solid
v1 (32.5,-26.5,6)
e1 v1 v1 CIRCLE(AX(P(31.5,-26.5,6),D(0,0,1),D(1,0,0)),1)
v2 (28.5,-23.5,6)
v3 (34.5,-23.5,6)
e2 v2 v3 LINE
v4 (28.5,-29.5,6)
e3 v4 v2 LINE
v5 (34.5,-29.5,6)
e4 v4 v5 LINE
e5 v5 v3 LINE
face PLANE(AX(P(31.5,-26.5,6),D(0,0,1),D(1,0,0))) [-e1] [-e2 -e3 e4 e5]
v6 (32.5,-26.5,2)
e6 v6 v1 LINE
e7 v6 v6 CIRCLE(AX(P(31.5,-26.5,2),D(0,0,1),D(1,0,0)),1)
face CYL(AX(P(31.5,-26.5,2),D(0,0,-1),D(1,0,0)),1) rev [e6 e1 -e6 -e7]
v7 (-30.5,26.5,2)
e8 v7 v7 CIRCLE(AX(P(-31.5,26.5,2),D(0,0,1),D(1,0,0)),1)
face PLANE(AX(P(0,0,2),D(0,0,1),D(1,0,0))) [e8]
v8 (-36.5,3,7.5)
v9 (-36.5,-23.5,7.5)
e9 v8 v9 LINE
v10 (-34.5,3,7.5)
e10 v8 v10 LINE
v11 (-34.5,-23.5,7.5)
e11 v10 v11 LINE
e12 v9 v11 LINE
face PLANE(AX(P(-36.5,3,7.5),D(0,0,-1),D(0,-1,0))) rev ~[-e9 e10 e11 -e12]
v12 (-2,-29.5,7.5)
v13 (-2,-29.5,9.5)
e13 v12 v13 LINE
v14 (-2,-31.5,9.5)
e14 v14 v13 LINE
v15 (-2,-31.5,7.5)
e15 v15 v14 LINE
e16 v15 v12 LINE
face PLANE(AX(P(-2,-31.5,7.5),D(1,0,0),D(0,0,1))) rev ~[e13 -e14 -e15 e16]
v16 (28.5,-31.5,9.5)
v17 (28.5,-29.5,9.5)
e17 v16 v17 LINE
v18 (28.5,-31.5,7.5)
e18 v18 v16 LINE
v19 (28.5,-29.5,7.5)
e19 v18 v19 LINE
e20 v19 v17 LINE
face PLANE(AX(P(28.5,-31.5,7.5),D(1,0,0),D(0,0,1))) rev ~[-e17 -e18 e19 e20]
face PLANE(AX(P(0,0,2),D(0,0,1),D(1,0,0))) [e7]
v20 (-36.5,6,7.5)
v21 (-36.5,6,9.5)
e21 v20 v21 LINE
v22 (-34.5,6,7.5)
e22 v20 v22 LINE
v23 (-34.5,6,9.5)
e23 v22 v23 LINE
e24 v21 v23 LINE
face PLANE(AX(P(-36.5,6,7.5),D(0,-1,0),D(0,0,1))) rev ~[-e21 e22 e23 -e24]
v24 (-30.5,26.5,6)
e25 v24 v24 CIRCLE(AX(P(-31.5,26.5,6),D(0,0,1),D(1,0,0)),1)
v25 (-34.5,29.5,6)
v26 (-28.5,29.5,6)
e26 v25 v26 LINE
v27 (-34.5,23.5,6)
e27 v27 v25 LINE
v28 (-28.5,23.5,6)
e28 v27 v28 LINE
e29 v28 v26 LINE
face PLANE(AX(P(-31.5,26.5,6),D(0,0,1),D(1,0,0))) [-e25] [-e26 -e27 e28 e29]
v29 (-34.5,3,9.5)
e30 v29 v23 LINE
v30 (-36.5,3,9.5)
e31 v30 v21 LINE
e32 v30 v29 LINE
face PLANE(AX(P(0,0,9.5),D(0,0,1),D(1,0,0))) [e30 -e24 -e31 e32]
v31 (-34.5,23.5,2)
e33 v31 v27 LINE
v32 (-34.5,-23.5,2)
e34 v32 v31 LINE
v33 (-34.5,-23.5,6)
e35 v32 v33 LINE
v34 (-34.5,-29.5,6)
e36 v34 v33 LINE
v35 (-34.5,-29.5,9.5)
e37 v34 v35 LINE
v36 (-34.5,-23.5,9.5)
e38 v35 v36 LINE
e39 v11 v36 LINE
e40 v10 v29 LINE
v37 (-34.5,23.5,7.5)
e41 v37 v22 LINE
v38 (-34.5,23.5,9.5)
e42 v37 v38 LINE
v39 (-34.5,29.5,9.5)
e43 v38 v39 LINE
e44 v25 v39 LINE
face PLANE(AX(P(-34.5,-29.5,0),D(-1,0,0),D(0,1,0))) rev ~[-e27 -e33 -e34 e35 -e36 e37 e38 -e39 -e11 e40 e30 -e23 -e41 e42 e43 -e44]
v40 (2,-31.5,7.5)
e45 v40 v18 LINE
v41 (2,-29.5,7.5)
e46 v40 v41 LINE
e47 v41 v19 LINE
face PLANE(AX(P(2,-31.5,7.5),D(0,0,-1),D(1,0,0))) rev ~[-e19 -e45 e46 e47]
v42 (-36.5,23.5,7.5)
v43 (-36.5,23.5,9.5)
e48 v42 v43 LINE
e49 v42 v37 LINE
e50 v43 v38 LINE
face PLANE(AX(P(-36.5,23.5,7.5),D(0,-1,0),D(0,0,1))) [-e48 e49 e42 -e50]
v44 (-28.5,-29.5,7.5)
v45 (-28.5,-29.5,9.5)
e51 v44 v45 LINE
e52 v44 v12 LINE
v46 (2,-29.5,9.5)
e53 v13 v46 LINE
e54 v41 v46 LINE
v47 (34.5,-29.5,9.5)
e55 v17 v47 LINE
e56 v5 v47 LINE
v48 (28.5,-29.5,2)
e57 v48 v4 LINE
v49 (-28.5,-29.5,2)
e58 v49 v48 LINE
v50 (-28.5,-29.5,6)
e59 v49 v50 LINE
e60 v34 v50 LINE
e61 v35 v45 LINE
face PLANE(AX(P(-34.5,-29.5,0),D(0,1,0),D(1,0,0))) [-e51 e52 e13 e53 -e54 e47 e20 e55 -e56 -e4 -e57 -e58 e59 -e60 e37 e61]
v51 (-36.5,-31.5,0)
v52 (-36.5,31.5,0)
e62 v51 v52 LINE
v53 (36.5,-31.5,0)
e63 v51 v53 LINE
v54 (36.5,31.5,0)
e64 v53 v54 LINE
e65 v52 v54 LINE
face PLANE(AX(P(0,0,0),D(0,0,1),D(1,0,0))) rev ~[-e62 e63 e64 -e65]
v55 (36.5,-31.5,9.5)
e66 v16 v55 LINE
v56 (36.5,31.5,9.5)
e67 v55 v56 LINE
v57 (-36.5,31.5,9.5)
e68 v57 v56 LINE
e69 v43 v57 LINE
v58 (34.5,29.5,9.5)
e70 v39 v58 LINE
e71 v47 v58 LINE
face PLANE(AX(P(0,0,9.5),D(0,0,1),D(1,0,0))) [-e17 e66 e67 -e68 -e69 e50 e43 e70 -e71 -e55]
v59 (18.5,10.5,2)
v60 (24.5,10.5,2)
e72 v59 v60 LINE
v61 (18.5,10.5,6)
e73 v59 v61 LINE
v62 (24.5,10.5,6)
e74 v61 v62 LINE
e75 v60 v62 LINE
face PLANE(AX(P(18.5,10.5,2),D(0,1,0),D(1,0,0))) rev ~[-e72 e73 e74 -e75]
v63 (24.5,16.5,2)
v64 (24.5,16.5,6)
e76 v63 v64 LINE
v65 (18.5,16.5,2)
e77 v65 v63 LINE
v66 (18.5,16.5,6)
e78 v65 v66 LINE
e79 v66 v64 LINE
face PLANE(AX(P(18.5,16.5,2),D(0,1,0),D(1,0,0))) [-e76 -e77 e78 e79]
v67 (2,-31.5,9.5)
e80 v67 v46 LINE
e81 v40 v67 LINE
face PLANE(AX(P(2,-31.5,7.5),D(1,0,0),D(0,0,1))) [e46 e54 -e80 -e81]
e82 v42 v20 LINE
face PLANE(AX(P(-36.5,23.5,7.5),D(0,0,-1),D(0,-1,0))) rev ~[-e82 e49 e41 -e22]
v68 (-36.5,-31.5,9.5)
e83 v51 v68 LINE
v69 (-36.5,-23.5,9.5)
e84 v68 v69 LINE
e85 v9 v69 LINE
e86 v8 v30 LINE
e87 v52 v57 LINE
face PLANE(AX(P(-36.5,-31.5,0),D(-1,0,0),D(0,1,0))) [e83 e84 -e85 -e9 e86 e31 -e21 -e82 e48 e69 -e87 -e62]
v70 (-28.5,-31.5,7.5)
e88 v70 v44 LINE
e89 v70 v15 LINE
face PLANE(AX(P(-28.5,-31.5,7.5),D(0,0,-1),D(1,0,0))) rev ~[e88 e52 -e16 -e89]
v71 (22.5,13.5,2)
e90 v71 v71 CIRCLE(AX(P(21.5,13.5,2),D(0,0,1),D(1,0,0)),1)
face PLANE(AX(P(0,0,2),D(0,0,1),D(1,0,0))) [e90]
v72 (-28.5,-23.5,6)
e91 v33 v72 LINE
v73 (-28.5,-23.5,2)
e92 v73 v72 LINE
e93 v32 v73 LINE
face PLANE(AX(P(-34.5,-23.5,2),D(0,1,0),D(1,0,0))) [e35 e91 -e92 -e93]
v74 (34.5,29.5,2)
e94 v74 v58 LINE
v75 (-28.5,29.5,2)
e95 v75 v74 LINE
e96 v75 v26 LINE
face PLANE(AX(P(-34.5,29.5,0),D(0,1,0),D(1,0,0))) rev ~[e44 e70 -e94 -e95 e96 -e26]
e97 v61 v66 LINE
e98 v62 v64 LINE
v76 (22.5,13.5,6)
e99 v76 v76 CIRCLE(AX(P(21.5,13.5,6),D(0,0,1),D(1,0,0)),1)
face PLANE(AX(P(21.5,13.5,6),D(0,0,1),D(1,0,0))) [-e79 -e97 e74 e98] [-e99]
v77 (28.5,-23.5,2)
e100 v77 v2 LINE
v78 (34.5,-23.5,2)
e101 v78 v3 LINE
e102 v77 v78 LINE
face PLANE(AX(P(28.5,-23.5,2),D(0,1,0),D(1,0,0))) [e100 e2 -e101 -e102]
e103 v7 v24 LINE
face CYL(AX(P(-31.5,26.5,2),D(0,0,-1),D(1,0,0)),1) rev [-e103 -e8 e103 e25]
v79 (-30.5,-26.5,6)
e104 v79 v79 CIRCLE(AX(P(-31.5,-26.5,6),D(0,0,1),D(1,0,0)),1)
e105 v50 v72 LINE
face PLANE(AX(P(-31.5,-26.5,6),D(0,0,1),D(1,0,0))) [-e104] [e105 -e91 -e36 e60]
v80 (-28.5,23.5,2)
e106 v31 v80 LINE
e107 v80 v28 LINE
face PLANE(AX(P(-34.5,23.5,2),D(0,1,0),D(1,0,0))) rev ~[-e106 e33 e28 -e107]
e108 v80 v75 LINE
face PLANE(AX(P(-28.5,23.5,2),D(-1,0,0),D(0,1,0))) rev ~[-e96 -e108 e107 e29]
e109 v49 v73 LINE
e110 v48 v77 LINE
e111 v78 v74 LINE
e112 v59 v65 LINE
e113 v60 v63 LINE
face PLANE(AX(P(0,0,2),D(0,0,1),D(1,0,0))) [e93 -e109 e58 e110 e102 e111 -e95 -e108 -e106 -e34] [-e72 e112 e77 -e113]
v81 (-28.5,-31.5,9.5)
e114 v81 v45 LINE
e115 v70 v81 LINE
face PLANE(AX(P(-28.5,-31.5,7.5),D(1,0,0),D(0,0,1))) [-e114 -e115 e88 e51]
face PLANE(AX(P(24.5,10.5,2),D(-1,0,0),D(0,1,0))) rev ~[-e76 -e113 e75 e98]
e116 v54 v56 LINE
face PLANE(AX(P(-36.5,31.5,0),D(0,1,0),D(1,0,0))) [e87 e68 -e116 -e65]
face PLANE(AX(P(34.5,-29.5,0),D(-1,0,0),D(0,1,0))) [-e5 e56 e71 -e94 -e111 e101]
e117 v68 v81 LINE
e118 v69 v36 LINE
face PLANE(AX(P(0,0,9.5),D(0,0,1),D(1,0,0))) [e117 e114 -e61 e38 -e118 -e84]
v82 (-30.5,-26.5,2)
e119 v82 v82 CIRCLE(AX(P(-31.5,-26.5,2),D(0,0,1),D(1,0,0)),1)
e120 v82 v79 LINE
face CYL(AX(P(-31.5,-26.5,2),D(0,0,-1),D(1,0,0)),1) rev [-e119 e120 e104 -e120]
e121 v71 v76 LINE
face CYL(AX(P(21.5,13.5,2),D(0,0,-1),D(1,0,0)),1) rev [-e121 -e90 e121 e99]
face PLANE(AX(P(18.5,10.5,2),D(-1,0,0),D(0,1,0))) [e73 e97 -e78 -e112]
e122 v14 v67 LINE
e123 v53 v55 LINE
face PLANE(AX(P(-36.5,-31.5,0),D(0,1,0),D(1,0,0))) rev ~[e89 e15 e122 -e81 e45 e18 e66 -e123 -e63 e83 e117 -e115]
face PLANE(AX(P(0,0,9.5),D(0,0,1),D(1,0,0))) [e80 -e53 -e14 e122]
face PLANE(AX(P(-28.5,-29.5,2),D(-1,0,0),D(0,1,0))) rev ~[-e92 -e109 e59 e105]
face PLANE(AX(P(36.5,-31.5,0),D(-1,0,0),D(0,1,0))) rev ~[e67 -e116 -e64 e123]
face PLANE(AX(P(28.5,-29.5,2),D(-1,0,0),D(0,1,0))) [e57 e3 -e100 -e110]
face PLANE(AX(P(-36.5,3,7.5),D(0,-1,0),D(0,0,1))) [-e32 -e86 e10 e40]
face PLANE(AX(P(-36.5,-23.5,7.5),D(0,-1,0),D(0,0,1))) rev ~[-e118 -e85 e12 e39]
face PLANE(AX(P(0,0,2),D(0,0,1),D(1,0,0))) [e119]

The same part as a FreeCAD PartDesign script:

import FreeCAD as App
import Part
import Sketcher
Q = App.Units.Quantity

doc = App.newDocument("Part")
params = doc.addObject("Spreadsheet::Sheet", "Params")
for row, (alias, value) in enumerate([
    ("sketch1_width", "73 mm"),
    ("sketch1_width2", "69 mm"),
    ("sketch1_height", "63 mm"),
    ("sketch1_height2", "59 mm"),
    ("pad1_length", "9.5 mm"),
    ("sketch2_width", "69 mm"),
    ("sketch2_height", "59 mm"),
    ("pad2_length", "2 mm"),
    ("sketch3_diameter", "2 mm"),
    ("sketch3_width", "6 mm"),
    ("pad3_length", "4 mm"),
    ("sketch4_height", "2 mm"),
    ("sketch4_width", "26.5 mm"),
    ("pocket1_length", "2 mm"),
    ("sketch5_height", "2 mm"),
    ("sketch5_width", "26.5 mm"),
    ("sketch5_width2", "17.5 mm"),
    ("pocket2_length", "2 mm"),
], start=1):
    params.set(f"A{row}", alias)
    params.set(f"B{row}", "=" + value)
    params.setAlias(f"B{row}", alias)

body = doc.addObject("PartDesign::Body", "Body")

# Sketch on XY plane
sketch1 = body.newObject("Sketcher::SketchObject", "Sketch")
sketch1.AttachmentSupport = (doc.getObject("XY_Plane"), [""])
sketch1.MapMode = "FlatFace"
sketch1.addGeometry([
    Part.LineSegment(App.Vector(-36.5, 31.5, 0), App.Vector(-36.5, -31.5, 0)),  # 0
    Part.LineSegment(App.Vector(-36.5, -31.5, 0), App.Vector(36.5, -31.5, 0)),  # 1
    Part.LineSegment(App.Vector(36.5, -31.5, 0), App.Vector(36.5, 31.5, 0)),  # 2
    Part.LineSegment(App.Vector(36.5, 31.5, 0), App.Vector(-36.5, 31.5, 0)),  # 3
    Part.LineSegment(App.Vector(34.5, -29.5, 0), App.Vector(-34.5, -29.5, 0)),  # 4
    Part.LineSegment(App.Vector(-34.5, -29.5, 0), App.Vector(-34.5, 29.5, 0)),  # 5
    Part.LineSegment(App.Vector(-34.5, 29.5, 0), App.Vector(34.5, 29.5, 0)),  # 6
    Part.LineSegment(App.Vector(34.5, 29.5, 0), App.Vector(34.5, -29.5, 0)),  # 7
], False)
sketch1.addConstraint([
    Sketcher.Constraint("Coincident", 0, 2, 1, 1),
    Sketcher.Constraint("Coincident", 1, 2, 2, 1),
    Sketcher.Constraint("Coincident", 2, 2, 3, 1),
    Sketcher.Constraint("Coincident", 3, 2, 0, 1),
    Sketcher.Constraint("Coincident", 4, 2, 5, 1),
    Sketcher.Constraint("Coincident", 5, 2, 6, 1),
    Sketcher.Constraint("Coincident", 6, 2, 7, 1),
    Sketcher.Constraint("Coincident", 7, 2, 4, 1),
    Sketcher.Constraint("Vertical", 0),
    Sketcher.Constraint("Horizontal", 1),
    Sketcher.Constraint("Vertical", 2),
    Sketcher.Constraint("Horizontal", 3),
    Sketcher.Constraint("Horizontal", 4),
    Sketcher.Constraint("Vertical", 5),
    Sketcher.Constraint("Horizontal", 6),
    Sketcher.Constraint("Vertical", 7),
    Sketcher.Constraint("Symmetric", 0, 2, 2, 2, -1, 1),
    Sketcher.Constraint("Symmetric", 4, 2, 6, 2, -1, 1),
    Sketcher.Constraint("DistanceX", 1, 1, 1, 2, Q("73 mm")),
    Sketcher.Constraint("DistanceX", 4, 2, 4, 1, Q("69 mm")),
    Sketcher.Constraint("DistanceY", 0, 2, 0, 1, Q("63 mm")),
    Sketcher.Constraint("DistanceY", 5, 1, 5, 2, Q("59 mm")),
])
sketch1.setExpression("Constraints[18]", "Params.sketch1_width")
sketch1.setExpression("Constraints[19]", "Params.sketch1_width2")
sketch1.setExpression("Constraints[20]", "Params.sketch1_height")
sketch1.setExpression("Constraints[21]", "Params.sketch1_height2")
pad1 = body.newObject("PartDesign::Pad", "Pad")
pad1.Profile = sketch1
pad1.setExpression("Length", "Params.pad1_length")

# Sketch on XY plane
sketch2 = body.newObject("Sketcher::SketchObject", "Sketch001")
sketch2.AttachmentSupport = (doc.getObject("XY_Plane"), [""])
sketch2.MapMode = "FlatFace"
sketch2.addGeometry([
    Part.LineSegment(App.Vector(-34.5, 29.5, 0), App.Vector(-34.5, -29.5, 0)),
    Part.LineSegment(App.Vector(-34.5, -29.5, 0), App.Vector(34.5, -29.5, 0)),
    Part.LineSegment(App.Vector(34.5, -29.5, 0), App.Vector(34.5, 29.5, 0)),
    Part.LineSegment(App.Vector(34.5, 29.5, 0), App.Vector(-34.5, 29.5, 0)),
], False)
sketch2.addConstraint([
    Sketcher.Constraint("Coincident", 0, 2, 1, 1),
    Sketcher.Constraint("Coincident", 1, 2, 2, 1),
    Sketcher.Constraint("Coincident", 2, 2, 3, 1),
    Sketcher.Constraint("Coincident", 3, 2, 0, 1),
    Sketcher.Constraint("Vertical", 0),
    Sketcher.Constraint("Horizontal", 1),
    Sketcher.Constraint("Vertical", 2),
    Sketcher.Constraint("Horizontal", 3),
    Sketcher.Constraint("Symmetric", 0, 2, 2, 2, -1, 1),
    Sketcher.Constraint("DistanceX", 1, 1, 1, 2, Q("69 mm")),
    Sketcher.Constraint("DistanceY", 0, 2, 0, 1, Q("59 mm")),
])
sketch2.setExpression("Constraints[9]", "Params.sketch2_width")
sketch2.setExpression("Constraints[10]", "Params.sketch2_height")
pad2 = body.newObject("PartDesign::Pad", "Pad001")
pad2.Profile = sketch2
pad2.setExpression("Length", "Params.pad2_length")

# Sketch on XY plane
sketch3 = body.newObject("Sketcher::SketchObject", "Sketch002")
sketch3.AttachmentSupport = (doc.getObject("XY_Plane"), [""])
sketch3.MapMode = "FlatFace"
sketch3.AttachmentOffset = App.Placement(App.Vector(0, 0, 2), App.Rotation())
sketch3.addGeometry([
    Part.LineSegment(App.Vector(18.5, 16.5, 0), App.Vector(18.5, 10.5, 0)),  # 0
    Part.LineSegment(App.Vector(18.5, 10.5, 0), App.Vector(24.5, 10.5, 0)),  # 1
    Part.LineSegment(App.Vector(24.5, 10.5, 0), App.Vector(24.5, 16.5, 0)),  # 2
    Part.LineSegment(App.Vector(24.5, 16.5, 0), App.Vector(18.5, 16.5, 0)),  # 3
    Part.Circle(App.Vector(21.5, 13.5, 0), App.Vector(0, 0, 1), 1),  # 4
    Part.LineSegment(App.Vector(28.5, -23.5, 0), App.Vector(28.5, -29.5, 0)),  # 5
    Part.LineSegment(App.Vector(28.5, -29.5, 0), App.Vector(34.5, -29.5, 0)),  # 6
    Part.LineSegment(App.Vector(34.5, -29.5, 0), App.Vector(34.5, -23.5, 0)),  # 7
    Part.LineSegment(App.Vector(34.5, -23.5, 0), App.Vector(28.5, -23.5, 0)),  # 8
    Part.Circle(App.Vector(31.5, -26.5, 0), App.Vector(0, 0, 1), 1),  # 9
    Part.LineSegment(App.Vector(-34.5, 29.5, 0), App.Vector(-34.5, 23.5, 0)),  # 10
    Part.LineSegment(App.Vector(-34.5, 23.5, 0), App.Vector(-28.5, 23.5, 0)),  # 11
    Part.LineSegment(App.Vector(-28.5, 23.5, 0), App.Vector(-28.5, 29.5, 0)),  # 12
    Part.LineSegment(App.Vector(-28.5, 29.5, 0), App.Vector(-34.5, 29.5, 0)),  # 13
    Part.Circle(App.Vector(-31.5, 26.5, 0), App.Vector(0, 0, 1), 1),  # 14
    Part.LineSegment(App.Vector(-34.5, -23.5, 0), App.Vector(-34.5, -29.5, 0)),  # 15
    Part.LineSegment(App.Vector(-34.5, -29.5, 0), App.Vector(-28.5, -29.5, 0)),  # 16
    Part.LineSegment(App.Vector(-28.5, -29.5, 0), App.Vector(-28.5, -23.5, 0)),  # 17
    Part.LineSegment(App.Vector(-28.5, -23.5, 0), App.Vector(-34.5, -23.5, 0)),  # 18
    Part.Circle(App.Vector(-31.5, -26.5, 0), App.Vector(0, 0, 1), 1),  # 19
], False)
sketch3.addConstraint([
    Sketcher.Constraint("Coincident", 0, 2, 1, 1),
    Sketcher.Constraint("Coincident", 1, 2, 2, 1),
    Sketcher.Constraint("Coincident", 2, 2, 3, 1),
    Sketcher.Constraint("Coincident", 3, 2, 0, 1),
    Sketcher.Constraint("Coincident", 5, 2, 6, 1),
    Sketcher.Constraint("Coincident", 6, 2, 7, 1),
    Sketcher.Constraint("Coincident", 7, 2, 8, 1),
    Sketcher.Constraint("Coincident", 8, 2, 5, 1),
    Sketcher.Constraint("Coincident", 10, 2, 11, 1),
    Sketcher.Constraint("Coincident", 11, 2, 12, 1),
    Sketcher.Constraint("Coincident", 12, 2, 13, 1),
    Sketcher.Constraint("Coincident", 13, 2, 10, 1),
    Sketcher.Constraint("Coincident", 15, 2, 16, 1),
    Sketcher.Constraint("Coincident", 16, 2, 17, 1),
    Sketcher.Constraint("Coincident", 17, 2, 18, 1),
    Sketcher.Constraint("Coincident", 18, 2, 15, 1),
    Sketcher.Constraint("Vertical", 0),
    Sketcher.Constraint("Horizontal", 1),
    Sketcher.Constraint("Vertical", 2),
    Sketcher.Constraint("Horizontal", 3),
    Sketcher.Constraint("Vertical", 5),
    Sketcher.Constraint("Horizontal", 6),
    Sketcher.Constraint("Vertical", 7),
    Sketcher.Constraint("Horizontal", 8),
    Sketcher.Constraint("Vertical", 10),
    Sketcher.Constraint("Horizontal", 11),
    Sketcher.Constraint("Vertical", 12),
    Sketcher.Constraint("Horizontal", 13),
    Sketcher.Constraint("Vertical", 15),
    Sketcher.Constraint("Horizontal", 16),
    Sketcher.Constraint("Vertical", 17),
    Sketcher.Constraint("Horizontal", 18),
    Sketcher.Constraint("Equal", 4, 9),
    Sketcher.Constraint("Equal", 9, 14),
    Sketcher.Constraint("Equal", 14, 19),
    Sketcher.Constraint("Symmetric", 9, 3, 14, 3, -1, 1),
    Sketcher.Constraint("Symmetric", 7, 2, 10, 2, -1, 1),
    Sketcher.Constraint("Symmetric", 5, 2, 12, 2, -1, 1),
    Sketcher.Constraint("Symmetric", 9, 3, 19, 3, -2),
    Sketcher.Constraint("Symmetric", 6, 2, 15, 2, -2),
    Sketcher.Constraint("Symmetric", 8, 2, 17, 2, -2),
    Sketcher.Constraint("Equal", 3, 6),
    Sketcher.Constraint("Equal", 18, 0),
    Sketcher.Constraint("Equal", 2, 5),
    Sketcher.Constraint("Diameter", 4, Q("2 mm")),
    Sketcher.Constraint("DistanceX", 1, 1, 1, 2, Q("6 mm")),
    Sketcher.Constraint("DistanceX", 4, 3, 9, 3, Q("10 mm")),
    Sketcher.Constraint("DistanceY", 9, 3, 4, 3, Q("40 mm")),
    Sketcher.Constraint("DistanceX", 14, 3, 4, 3, Q("53 mm")),
    Sketcher.Constraint("DistanceY", 4, 3, 14, 3, Q("13 mm")),
    Sketcher.Constraint("DistanceX", 0, 2, 4, 3, Q("3 mm")),
    Sketcher.Constraint("DistanceY", 0, 2, 4, 3, Q("3 mm")),
    Sketcher.Constraint("DistanceX", 5, 2, 9, 3, Q("3 mm")),
    Sketcher.Constraint("DistanceY", 5, 2, 9, 3, Q("3 mm")),
])
sketch3.setExpression("Constraints[44]", "Params.sketch3_diameter")
sketch3.setExpression("Constraints[45]", "Params.sketch3_width")
pad3 = body.newObject("PartDesign::Pad", "Pad002")
pad3.Profile = sketch3
pad3.setExpression("Length", "Params.pad3_length")

# Sketch on XZ plane
sketch4 = body.newObject("Sketcher::SketchObject", "Sketch003")
sketch4.AttachmentSupport = (doc.getObject("XZ_Plane"), [""])
sketch4.MapMode = "FlatFace"
sketch4.AttachmentOffset = App.Placement(App.Vector(0, 0, 31.5), App.Rotation())
sketch4.addGeometry([
    Part.LineSegment(App.Vector(2, 9.5, 0), App.Vector(2, 7.5, 0)),  # 0
    Part.LineSegment(App.Vector(2, 7.5, 0), App.Vector(28.5, 7.5, 0)),  # 1
    Part.LineSegment(App.Vector(28.5, 7.5, 0), App.Vector(28.5, 9.5, 0)),  # 2
    Part.LineSegment(App.Vector(28.5, 9.5, 0), App.Vector(2, 9.5, 0)),  # 3
    Part.LineSegment(App.Vector(-28.5, 9.5, 0), App.Vector(-28.5, 7.5, 0)),  # 4
    Part.LineSegment(App.Vector(-28.5, 7.5, 0), App.Vector(-2, 7.5, 0)),  # 5
    Part.LineSegment(App.Vector(-2, 7.5, 0), App.Vector(-2, 9.5, 0)),  # 6
    Part.LineSegment(App.Vector(-2, 9.5, 0), App.Vector(-28.5, 9.5, 0)),  # 7
], False)
sketch4.addConstraint([
    Sketcher.Constraint("Coincident", 0, 2, 1, 1),
    Sketcher.Constraint("Coincident", 1, 2, 2, 1),
    Sketcher.Constraint("Coincident", 2, 2, 3, 1),
    Sketcher.Constraint("Coincident", 3, 2, 0, 1),
    Sketcher.Constraint("Coincident", 4, 2, 5, 1),
    Sketcher.Constraint("Coincident", 5, 2, 6, 1),
    Sketcher.Constraint("Coincident", 6, 2, 7, 1),
    Sketcher.Constraint("Coincident", 7, 2, 4, 1),
    Sketcher.Constraint("Vertical", 0),
    Sketcher.Constraint("Horizontal", 1),
    Sketcher.Constraint("Vertical", 2),
    Sketcher.Constraint("Horizontal", 3),
    Sketcher.Constraint("Vertical", 4),
    Sketcher.Constraint("Horizontal", 5),
    Sketcher.Constraint("Vertical", 6),
    Sketcher.Constraint("Horizontal", 7),
    Sketcher.Constraint("Symmetric", 1, 2, 4, 2, -2),
    Sketcher.Constraint("Symmetric", 3, 2, 6, 2, -2),
    Sketcher.Constraint("DistanceY", 0, 2, 0, 1, Q("2 mm")),
    Sketcher.Constraint("DistanceX", 1, 1, 1, 2, Q("26.5 mm")),
    Sketcher.Constraint("DistanceX", -1, 1, 0, 2, Q("2 mm")),
    Sketcher.Constraint("DistanceY", -1, 1, 0, 2, Q("7.5 mm")),
])
sketch4.setExpression("Constraints[18]", "Params.sketch4_height")
sketch4.setExpression("Constraints[19]", "Params.sketch4_width")
pocket1 = body.newObject("PartDesign::Pocket", "Pocket")
pocket1.Profile = sketch4
pocket1.setExpression("Length", "Params.pocket1_length")

# Sketch on YZ plane
sketch5 = body.newObject("Sketcher::SketchObject", "Sketch004")
sketch5.AttachmentSupport = (doc.getObject("YZ_Plane"), [""])
sketch5.MapMode = "FlatFace"
sketch5.AttachmentOffset = App.Placement(App.Vector(0, 0, -36.5), App.Rotation())
sketch5.addGeometry([
    Part.LineSegment(App.Vector(3, 9.5, 0), App.Vector(3, 7.5, 0)),  # 0
    Part.LineSegment(App.Vector(3, 7.5, 0), App.Vector(-23.5, 7.5, 0)),  # 1
    Part.LineSegment(App.Vector(-23.5, 7.5, 0), App.Vector(-23.5, 9.5, 0)),  # 2
    Part.LineSegment(App.Vector(-23.5, 9.5, 0), App.Vector(3, 9.5, 0)),  # 3
    Part.LineSegment(App.Vector(23.5, 9.5, 0), App.Vector(23.5, 7.5, 0)),  # 4
    Part.LineSegment(App.Vector(23.5, 7.5, 0), App.Vector(6, 7.5, 0)),  # 5
    Part.LineSegment(App.Vector(6, 7.5, 0), App.Vector(6, 9.5, 0)),  # 6
    Part.LineSegment(App.Vector(6, 9.5, 0), App.Vector(23.5, 9.5, 0)),  # 7
], False)
sketch5.addConstraint([
    Sketcher.Constraint("Coincident", 0, 2, 1, 1),
    Sketcher.Constraint("Coincident", 1, 2, 2, 1),
    Sketcher.Constraint("Coincident", 2, 2, 3, 1),
    Sketcher.Constraint("Coincident", 3, 2, 0, 1),
    Sketcher.Constraint("Coincident", 4, 2, 5, 1),
    Sketcher.Constraint("Coincident", 5, 2, 6, 1),
    Sketcher.Constraint("Coincident", 6, 2, 7, 1),
    Sketcher.Constraint("Coincident", 7, 2, 4, 1),
    Sketcher.Constraint("Vertical", 0),
    Sketcher.Constraint("Horizontal", 1),
    Sketcher.Constraint("Vertical", 2),
    Sketcher.Constraint("Horizontal", 3),
    Sketcher.Constraint("Vertical", 4),
    Sketcher.Constraint("Horizontal", 5),
    Sketcher.Constraint("Vertical", 6),
    Sketcher.Constraint("Horizontal", 7),
    Sketcher.Constraint("Symmetric", 1, 2, 4, 2, -2),
    Sketcher.Constraint("Horizontal", 3, 2, 6, 2),
    Sketcher.Constraint("DistanceY", 0, 2, 0, 1, Q("2 mm")),
    Sketcher.Constraint("DistanceX", 1, 2, 1, 1, Q("26.5 mm")),
    Sketcher.Constraint("DistanceX", 5, 2, 5, 1, Q("17.5 mm")),
    Sketcher.Constraint("DistanceX", -1, 1, 0, 2, Q("3 mm")),
    Sketcher.Constraint("DistanceY", -1, 1, 0, 2, Q("7.5 mm")),
])
sketch5.setExpression("Constraints[18]", "Params.sketch5_height")
sketch5.setExpression("Constraints[19]", "Params.sketch5_width")
sketch5.setExpression("Constraints[20]", "Params.sketch5_width2")
pocket2 = body.newObject("PartDesign::Pocket", "Pocket001")
pocket2.Profile = sketch5
pocket2.setExpression("Length", "Params.pocket2_length")
pocket2.Reversed = True

doc.recompute()
